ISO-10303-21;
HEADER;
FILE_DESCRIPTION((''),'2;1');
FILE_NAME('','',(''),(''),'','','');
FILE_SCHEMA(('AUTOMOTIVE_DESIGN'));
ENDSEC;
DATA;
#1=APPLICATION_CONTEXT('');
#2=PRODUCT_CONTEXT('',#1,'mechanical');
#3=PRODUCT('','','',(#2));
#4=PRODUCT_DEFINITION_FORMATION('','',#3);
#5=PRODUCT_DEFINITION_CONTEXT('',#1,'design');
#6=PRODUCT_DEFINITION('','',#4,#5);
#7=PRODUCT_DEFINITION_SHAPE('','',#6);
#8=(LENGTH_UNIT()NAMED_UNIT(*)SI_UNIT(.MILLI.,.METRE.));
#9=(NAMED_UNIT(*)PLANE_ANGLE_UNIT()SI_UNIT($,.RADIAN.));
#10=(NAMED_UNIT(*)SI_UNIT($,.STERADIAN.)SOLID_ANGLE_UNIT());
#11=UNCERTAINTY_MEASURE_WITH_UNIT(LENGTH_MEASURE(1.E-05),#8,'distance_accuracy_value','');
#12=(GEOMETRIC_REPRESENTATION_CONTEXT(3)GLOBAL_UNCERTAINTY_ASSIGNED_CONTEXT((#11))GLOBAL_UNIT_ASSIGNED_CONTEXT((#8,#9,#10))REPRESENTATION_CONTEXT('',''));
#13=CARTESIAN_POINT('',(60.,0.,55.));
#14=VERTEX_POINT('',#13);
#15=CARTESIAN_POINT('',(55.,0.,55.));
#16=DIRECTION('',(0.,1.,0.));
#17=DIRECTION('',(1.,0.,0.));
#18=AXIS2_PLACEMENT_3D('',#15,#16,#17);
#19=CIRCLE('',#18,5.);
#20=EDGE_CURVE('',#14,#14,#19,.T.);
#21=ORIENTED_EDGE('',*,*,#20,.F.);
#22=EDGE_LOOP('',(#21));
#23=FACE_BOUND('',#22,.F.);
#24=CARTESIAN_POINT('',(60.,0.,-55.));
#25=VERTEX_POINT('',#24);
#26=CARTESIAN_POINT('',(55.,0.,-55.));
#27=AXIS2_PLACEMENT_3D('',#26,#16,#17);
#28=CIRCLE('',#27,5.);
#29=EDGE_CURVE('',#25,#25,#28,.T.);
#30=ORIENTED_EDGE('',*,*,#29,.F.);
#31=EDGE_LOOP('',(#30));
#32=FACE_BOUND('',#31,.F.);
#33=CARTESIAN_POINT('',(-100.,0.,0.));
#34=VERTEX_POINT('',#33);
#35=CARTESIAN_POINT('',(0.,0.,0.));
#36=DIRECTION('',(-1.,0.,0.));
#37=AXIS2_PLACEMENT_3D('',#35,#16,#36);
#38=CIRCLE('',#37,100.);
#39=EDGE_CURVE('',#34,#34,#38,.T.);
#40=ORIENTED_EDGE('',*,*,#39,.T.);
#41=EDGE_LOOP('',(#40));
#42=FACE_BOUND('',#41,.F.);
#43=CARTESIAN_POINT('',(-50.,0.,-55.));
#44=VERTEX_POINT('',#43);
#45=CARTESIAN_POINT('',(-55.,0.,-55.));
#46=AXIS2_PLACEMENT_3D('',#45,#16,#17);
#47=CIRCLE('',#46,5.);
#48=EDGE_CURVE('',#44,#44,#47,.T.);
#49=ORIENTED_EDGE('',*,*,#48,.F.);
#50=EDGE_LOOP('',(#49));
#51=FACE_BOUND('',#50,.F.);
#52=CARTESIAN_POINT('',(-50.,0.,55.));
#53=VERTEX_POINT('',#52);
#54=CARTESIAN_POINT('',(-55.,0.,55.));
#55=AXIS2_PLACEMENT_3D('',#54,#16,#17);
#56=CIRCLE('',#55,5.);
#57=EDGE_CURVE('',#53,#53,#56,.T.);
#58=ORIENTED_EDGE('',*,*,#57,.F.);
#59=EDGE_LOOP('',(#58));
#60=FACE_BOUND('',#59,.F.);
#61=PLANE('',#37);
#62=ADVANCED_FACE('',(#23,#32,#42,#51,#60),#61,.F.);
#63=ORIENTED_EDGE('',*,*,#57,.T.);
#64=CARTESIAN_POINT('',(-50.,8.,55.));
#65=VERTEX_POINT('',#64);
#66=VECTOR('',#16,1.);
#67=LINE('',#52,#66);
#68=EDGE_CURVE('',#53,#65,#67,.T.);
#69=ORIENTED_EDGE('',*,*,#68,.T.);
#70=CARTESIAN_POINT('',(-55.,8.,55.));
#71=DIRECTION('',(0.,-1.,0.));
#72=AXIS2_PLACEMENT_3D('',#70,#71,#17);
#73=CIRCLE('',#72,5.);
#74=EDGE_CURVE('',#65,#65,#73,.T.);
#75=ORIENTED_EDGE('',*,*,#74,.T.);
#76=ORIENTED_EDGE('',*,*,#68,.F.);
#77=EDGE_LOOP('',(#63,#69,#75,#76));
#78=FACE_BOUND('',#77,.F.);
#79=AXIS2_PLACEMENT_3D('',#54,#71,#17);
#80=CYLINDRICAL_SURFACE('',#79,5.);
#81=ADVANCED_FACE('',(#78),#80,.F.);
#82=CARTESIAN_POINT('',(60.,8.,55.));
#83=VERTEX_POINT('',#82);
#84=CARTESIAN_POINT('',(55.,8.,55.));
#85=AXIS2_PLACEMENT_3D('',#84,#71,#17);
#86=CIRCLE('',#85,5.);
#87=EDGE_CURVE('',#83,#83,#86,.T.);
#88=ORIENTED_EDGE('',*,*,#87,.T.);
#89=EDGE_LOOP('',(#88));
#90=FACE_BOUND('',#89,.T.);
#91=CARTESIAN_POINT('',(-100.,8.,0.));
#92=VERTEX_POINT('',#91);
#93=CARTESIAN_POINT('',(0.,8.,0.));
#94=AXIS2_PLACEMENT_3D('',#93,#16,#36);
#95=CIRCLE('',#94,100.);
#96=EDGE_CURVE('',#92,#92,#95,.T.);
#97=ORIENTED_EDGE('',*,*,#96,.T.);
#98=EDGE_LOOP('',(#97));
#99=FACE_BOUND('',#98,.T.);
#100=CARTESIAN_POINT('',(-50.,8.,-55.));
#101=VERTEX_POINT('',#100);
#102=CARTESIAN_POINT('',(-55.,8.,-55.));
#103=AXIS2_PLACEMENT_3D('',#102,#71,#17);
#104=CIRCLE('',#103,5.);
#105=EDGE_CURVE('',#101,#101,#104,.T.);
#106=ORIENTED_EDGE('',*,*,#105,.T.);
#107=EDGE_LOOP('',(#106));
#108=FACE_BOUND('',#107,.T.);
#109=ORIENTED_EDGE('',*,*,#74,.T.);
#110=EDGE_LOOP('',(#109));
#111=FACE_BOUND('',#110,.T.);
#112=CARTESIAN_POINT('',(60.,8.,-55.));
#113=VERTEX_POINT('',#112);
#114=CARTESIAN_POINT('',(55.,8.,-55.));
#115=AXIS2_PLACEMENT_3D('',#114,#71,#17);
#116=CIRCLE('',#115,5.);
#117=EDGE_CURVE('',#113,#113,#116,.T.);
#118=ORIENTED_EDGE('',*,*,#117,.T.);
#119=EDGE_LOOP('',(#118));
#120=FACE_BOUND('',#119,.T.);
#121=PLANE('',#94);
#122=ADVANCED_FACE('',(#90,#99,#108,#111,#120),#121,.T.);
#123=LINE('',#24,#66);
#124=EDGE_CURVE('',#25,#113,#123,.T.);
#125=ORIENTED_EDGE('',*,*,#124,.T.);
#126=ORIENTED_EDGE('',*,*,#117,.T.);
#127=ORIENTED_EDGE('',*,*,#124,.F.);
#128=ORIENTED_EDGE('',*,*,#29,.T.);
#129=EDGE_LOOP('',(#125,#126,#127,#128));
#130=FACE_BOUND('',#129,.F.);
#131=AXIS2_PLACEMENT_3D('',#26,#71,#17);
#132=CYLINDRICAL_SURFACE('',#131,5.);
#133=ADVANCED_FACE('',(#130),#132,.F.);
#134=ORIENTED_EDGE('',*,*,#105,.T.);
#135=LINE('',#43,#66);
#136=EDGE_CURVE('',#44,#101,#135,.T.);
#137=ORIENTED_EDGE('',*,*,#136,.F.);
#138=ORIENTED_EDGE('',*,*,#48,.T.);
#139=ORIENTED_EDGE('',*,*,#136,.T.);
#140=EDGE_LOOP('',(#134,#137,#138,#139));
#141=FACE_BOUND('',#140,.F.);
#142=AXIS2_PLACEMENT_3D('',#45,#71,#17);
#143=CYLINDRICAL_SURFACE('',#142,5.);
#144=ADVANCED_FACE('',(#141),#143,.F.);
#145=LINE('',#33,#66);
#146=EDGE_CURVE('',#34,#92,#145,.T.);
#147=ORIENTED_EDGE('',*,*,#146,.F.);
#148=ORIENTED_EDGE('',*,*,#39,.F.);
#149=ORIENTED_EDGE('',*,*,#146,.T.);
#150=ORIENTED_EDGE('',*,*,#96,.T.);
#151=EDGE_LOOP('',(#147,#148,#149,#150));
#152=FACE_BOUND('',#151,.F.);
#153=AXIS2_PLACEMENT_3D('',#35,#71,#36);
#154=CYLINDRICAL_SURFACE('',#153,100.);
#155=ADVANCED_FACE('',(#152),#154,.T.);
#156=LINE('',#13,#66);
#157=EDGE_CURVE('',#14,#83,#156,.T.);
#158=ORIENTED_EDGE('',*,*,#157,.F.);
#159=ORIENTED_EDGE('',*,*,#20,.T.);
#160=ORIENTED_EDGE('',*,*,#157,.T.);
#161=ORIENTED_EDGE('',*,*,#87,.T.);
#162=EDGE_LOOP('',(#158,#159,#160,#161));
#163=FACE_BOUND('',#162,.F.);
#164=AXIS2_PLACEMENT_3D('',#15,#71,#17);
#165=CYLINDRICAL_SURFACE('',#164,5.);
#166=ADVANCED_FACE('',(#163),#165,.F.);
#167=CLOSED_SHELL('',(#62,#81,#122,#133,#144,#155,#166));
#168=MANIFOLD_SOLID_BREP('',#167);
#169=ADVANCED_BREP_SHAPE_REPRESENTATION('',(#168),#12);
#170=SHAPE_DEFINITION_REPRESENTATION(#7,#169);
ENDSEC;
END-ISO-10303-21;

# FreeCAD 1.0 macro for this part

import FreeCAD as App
import Part
import Sketcher

V = App.Vector

doc = App.newDocument("Part")
body = doc.addObject("PartDesign::Body", "Body")

sketch1 = doc.addObject("Sketcher::SketchObject", "Sketch")
body.addObject(sketch1)
sketch1.AttachmentSupport = (doc.XZ_Plane, [""])
sketch1.MapMode = "FlatFace"
sketch1.addGeometry(Part.Circle(V(0, 0, 0), V(0, 0, 1), 100), False)
sketch1.addConstraint([
    Sketcher.Constraint("Coincident", 0, 3, -1, 1),
    Sketcher.Constraint("Diameter", 0, 200.0),
])
pad1 = doc.addObject("PartDesign::Pad", "Pad")
body.addObject(pad1)
pad1.Profile = sketch1
pad1.Length = 8
pad1.Reversed = True

sketch2 = doc.addObject("Sketcher::SketchObject", "Sketch001")
body.addObject(sketch2)
sketch2.AttachmentSupport = (doc.XZ_Plane, [""])
sketch2.MapMode = "FlatFace"
sketch2.addGeometry([
    Part.Circle(V(-55, -55, 0), V(0, 0, 1), 5),
    Part.Circle(V(55, -55, 0), V(0, 0, 1), 5),
    Part.Circle(V(-55, 55, 0), V(0, 0, 1), 5),
    Part.Circle(V(55, 55, 0), V(0, 0, 1), 5),
], False)
sketch2.addConstraint([
    Sketcher.Constraint("Equal", 0, 1),
    Sketcher.Constraint("Equal", 1, 2),
    Sketcher.Constraint("Equal", 2, 3),
    Sketcher.Constraint("Symmetric", 1, 3, 2, 3, -1, 1),
    Sketcher.Constraint("Symmetric", 0, 3, 3, 3, -1, 1),
    Sketcher.Constraint("Symmetric", 0, 3, 1, 3, -2),
    Sketcher.Constraint("Diameter", 0, 10.0),
    Sketcher.Constraint("DistanceX", 0, 3, 1, 3, 110.0),
    Sketcher.Constraint("DistanceY", 0, 3, 2, 3, 110.0),
])
pocket1 = doc.addObject("PartDesign::Pocket", "Pocket")
body.addObject(pocket1)
pocket1.Profile = sketch2
pocket1.Length = 10

doc.recompute()
